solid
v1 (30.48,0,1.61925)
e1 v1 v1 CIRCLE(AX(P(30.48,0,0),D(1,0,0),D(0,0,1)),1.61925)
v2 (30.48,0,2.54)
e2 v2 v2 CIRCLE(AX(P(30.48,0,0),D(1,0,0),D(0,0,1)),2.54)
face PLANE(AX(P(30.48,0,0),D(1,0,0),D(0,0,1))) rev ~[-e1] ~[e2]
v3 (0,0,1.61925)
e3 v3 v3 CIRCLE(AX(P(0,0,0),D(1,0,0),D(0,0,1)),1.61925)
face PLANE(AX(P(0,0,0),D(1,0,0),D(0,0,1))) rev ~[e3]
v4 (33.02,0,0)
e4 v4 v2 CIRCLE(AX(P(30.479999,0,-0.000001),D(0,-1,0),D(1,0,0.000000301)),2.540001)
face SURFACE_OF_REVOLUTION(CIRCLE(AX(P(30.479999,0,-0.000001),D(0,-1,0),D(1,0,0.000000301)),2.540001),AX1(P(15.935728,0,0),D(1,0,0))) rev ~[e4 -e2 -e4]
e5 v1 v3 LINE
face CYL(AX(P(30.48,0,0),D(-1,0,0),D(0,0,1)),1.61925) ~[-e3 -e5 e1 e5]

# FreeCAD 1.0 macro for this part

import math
import FreeCAD as App
import Part
import Sketcher
Q = App.Units.Quantity

doc = App.newDocument("Part")
params = doc.addObject("Spreadsheet::Sheet", "Params")
for row, (alias, value) in enumerate([
    ("sketch1_radius", "0.1 in"),
    ("sketch1_width", "1.3 in"),
    ("sketch1_width2", "1.2 in"),
    ("revolution_angle", "360 deg"),
], start=1):
    params.set(f"A{row}", alias)
    params.set(f"B{row}", "=" + value)
    params.setAlias(f"B{row}", alias)

body = doc.addObject("PartDesign::Body", "Body")

# Sketch on XZ plane
sketch1 = body.newObject("Sketcher::SketchObject", "Sketch")
sketch1.AttachmentSupport = (doc.getObject("XZ_Plane"), [""])
sketch1.MapMode = "FlatFace"
sketch1.addGeometry(Part.LineSegment(App.Vector(0, 1.6, 0), App.Vector(0, 0, 0)), False)
sketch1.addGeometry(Part.LineSegment(App.Vector(0, 0, 0), App.Vector(33, 0, 0)), False)
sketch1.addGeometry(Part.ArcOfCircle(Part.Circle(App.Vector(30.5, 0, 0), App.Vector(0, 0, 1), 2.5), math.radians(0), math.radians(90)), False)
sketch1.addGeometry(Part.LineSegment(App.Vector(30.5, 2.5, 0), App.Vector(30.5, 1.6, 0)), False)
sketch1.addGeometry(Part.LineSegment(App.Vector(30.5, 1.6, 0), App.Vector(0, 1.6, 0)), False)
sketch1.addConstraint(Sketcher.Constraint("Coincident", 0, 2, 1, 1))
sketch1.addConstraint(Sketcher.Constraint("Coincident", 1, 2, 2, 1))
sketch1.addConstraint(Sketcher.Constraint("Coincident", 2, 2, 3, 1))
sketch1.addConstraint(Sketcher.Constraint("Coincident", 3, 2, 4, 1))
sketch1.addConstraint(Sketcher.Constraint("Coincident", 4, 2, 0, 1))
sketch1.addConstraint(Sketcher.Constraint("Vertical", 0))
sketch1.addConstraint(Sketcher.Constraint("Horizontal", 1))
sketch1.addConstraint(Sketcher.Constraint("Vertical", 3))
sketch1.addConstraint(Sketcher.Constraint("Horizontal", 4))
sketch1.addConstraint(Sketcher.Constraint("Coincident", 0, 2, -1, 1))
sketch1.addConstraint(Sketcher.Constraint("PointOnObject", 2, 3, -1))
sketch1.addConstraint(Sketcher.Constraint("Radius", 2, Q("0.1 in")))
sketch1.addConstraint(Sketcher.Constraint("DistanceX", 1, 1, 1, 2, Q("1.3 in")))
sketch1.addConstraint(Sketcher.Constraint("DistanceX", 4, 2, 4, 1, Q("1.2 in")))
sketch1.addConstraint(Sketcher.Constraint("DistanceY", 0, 2, 0, 1, 1.61925))
sketch1.setExpression("Constraints[11]", "Params.sketch1_radius")
sketch1.setExpression("Constraints[12]", "Params.sketch1_width")
sketch1.setExpression("Constraints[13]", "Params.sketch1_width2")
revolution = body.newObject("PartDesign::Revolution", "Revolution")
revolution.Profile = sketch1
revolution.ReferenceAxis = (sketch1, ["H_Axis"])
revolution.setExpression("Angle", "Params.revolution_angle")

doc.recompute()
